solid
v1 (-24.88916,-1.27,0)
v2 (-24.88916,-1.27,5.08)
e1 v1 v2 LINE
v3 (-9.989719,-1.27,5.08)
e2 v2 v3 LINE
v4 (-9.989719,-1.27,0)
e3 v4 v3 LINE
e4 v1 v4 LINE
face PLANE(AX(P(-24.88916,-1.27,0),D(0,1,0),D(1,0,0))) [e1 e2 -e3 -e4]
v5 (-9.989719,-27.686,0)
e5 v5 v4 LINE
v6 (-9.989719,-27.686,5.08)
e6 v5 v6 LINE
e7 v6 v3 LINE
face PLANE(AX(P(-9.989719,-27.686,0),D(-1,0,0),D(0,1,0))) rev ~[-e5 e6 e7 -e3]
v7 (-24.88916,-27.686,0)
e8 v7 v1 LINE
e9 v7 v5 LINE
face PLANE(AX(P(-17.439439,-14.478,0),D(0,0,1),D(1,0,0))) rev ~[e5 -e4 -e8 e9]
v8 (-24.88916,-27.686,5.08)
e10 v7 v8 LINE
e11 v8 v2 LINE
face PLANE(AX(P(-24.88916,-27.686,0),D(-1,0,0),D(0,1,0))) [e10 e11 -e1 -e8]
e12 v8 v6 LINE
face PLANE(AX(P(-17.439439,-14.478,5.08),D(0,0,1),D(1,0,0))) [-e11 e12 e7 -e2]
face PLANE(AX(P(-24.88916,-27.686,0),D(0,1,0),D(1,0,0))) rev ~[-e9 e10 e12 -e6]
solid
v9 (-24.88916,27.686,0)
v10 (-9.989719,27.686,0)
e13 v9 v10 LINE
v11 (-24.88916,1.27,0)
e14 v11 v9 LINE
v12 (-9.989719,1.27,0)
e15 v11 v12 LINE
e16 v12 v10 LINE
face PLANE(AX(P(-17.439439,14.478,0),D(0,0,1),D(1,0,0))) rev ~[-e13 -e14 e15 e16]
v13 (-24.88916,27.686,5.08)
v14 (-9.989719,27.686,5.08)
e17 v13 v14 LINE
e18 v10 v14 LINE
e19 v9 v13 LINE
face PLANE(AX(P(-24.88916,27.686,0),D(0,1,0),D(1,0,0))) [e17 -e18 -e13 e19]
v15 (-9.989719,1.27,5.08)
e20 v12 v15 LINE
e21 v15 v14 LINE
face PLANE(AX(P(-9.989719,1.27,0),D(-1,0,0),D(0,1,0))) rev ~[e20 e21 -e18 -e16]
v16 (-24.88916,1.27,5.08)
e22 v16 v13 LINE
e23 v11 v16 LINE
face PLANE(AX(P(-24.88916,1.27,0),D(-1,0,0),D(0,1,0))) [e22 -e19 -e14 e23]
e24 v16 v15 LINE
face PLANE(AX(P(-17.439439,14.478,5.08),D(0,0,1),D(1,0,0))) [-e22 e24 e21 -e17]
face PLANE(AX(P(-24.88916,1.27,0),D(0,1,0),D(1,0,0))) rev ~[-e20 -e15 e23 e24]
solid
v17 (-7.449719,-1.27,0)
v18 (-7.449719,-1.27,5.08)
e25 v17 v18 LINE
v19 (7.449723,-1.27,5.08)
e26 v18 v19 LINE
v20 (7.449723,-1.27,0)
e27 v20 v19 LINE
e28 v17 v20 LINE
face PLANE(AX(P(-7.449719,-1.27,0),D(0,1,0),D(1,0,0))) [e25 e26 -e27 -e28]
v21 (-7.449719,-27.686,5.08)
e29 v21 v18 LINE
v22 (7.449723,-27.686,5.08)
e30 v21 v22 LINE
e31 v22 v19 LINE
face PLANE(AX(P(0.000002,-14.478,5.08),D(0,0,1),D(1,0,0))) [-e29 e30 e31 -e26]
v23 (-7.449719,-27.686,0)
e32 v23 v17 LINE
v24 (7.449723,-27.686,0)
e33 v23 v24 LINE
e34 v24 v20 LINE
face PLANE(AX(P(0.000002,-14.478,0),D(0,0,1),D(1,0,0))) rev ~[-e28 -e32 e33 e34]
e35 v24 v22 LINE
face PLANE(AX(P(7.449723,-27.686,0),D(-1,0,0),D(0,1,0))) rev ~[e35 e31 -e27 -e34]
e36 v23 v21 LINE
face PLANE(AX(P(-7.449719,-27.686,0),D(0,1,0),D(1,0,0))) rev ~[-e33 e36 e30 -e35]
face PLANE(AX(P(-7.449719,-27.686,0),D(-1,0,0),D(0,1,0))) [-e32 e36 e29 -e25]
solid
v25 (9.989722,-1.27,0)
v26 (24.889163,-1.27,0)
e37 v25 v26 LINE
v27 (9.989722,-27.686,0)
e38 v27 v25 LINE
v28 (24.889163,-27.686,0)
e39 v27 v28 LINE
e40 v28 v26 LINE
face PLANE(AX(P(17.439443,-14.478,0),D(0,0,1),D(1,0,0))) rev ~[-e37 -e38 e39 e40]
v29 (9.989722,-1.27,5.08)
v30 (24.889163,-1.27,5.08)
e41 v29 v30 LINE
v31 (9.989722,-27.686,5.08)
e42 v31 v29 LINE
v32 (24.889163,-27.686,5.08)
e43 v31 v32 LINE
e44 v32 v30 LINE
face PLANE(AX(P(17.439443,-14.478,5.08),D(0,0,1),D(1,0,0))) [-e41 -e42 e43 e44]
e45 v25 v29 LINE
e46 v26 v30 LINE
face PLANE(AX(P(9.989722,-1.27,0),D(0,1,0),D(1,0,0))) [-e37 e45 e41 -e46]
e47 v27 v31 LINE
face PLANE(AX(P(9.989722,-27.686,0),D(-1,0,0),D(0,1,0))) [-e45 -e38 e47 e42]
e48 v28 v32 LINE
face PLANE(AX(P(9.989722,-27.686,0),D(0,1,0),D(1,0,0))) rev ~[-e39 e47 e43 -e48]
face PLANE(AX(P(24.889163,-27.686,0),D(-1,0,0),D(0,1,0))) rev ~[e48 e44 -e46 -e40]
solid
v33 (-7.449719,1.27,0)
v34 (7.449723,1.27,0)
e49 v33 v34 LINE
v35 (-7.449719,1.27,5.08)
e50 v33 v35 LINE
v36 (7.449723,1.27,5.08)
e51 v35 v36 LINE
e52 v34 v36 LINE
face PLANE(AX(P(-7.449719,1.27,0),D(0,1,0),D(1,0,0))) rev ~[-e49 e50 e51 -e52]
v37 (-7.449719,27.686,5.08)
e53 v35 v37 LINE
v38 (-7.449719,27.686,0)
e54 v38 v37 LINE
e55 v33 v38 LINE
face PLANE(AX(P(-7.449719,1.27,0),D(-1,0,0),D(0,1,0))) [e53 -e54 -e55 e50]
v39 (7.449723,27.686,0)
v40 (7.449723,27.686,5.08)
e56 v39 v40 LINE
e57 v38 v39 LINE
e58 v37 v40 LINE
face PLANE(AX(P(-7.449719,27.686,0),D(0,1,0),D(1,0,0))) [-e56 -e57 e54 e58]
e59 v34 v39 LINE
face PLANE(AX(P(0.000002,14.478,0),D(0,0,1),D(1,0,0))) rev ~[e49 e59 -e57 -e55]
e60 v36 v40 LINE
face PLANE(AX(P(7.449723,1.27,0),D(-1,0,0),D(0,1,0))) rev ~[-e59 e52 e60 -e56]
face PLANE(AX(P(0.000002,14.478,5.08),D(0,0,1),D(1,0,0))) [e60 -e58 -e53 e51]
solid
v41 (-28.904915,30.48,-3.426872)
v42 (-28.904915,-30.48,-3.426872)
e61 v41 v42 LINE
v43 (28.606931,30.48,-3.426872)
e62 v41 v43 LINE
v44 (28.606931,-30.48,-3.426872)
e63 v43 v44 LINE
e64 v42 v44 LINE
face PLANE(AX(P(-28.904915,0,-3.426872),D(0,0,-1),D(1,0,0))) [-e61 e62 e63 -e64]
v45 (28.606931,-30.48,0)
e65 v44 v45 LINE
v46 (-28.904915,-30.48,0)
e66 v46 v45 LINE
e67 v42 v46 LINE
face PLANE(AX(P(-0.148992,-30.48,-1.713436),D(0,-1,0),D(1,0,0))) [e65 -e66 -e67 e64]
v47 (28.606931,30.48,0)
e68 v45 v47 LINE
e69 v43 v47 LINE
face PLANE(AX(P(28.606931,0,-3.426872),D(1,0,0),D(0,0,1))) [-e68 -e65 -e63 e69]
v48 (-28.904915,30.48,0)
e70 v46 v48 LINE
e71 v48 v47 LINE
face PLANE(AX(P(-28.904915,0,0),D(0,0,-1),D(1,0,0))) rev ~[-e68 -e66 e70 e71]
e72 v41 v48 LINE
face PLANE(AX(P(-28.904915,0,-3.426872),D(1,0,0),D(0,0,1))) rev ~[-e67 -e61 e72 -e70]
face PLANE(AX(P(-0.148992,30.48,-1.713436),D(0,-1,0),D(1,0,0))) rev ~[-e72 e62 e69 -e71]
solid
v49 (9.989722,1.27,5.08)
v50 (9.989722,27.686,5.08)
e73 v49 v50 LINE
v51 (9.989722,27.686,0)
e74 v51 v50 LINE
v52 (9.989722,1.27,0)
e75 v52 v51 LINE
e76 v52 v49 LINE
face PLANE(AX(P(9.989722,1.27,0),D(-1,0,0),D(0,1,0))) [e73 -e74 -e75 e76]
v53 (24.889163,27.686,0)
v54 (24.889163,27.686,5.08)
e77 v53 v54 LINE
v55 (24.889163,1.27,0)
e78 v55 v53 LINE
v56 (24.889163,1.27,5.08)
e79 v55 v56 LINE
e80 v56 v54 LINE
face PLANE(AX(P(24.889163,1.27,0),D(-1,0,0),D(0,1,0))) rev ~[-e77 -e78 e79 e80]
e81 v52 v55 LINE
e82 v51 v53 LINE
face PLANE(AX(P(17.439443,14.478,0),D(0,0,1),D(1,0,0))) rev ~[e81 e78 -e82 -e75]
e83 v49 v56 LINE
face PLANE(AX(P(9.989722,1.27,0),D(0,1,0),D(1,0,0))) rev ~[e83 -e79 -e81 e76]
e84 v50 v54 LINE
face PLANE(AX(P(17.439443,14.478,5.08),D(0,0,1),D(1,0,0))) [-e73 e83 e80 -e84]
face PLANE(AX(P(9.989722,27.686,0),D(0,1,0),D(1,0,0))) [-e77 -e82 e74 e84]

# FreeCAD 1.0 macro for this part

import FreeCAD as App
import Part
import Sketcher
from FreeCAD import Vector
Q = App.Units.Quantity


def add_polygon(sketch, points):
    """Adds a closed chain of lines whose ends are joined by coincident constraints."""
    first, n = sketch.GeometryCount, len(points)
    for a, b in zip(points, points[1:] + points[:1]):
        sketch.addGeometry(Part.LineSegment(App.Vector(*a, 0), App.Vector(*b, 0)), False)
    for i in range(n):
        sketch.addConstraint(Sketcher.Constraint("Coincident", first + i, 2, first + (i + 1) % n, 1))

doc = App.newDocument("Part")
body = doc.addObject("PartDesign::Body", "Body")
body.AllowCompound = True

# Sketch on XY plane
sketch1 = doc.addObject("Sketcher::SketchObject", "Sketch")
body.addObject(sketch1)
sketch1.AttachmentSupport = (doc.XY_Plane, [""])
sketch1.MapMode = "FlatFace"
add_polygon(sketch1, [(-24.88916, 27.686), (-24.88916, 1.27), (-9.989719, 1.27), (-9.989719, 27.686)])  # lines 0-3
add_polygon(sketch1, [(-7.449719, 27.686), (-7.449719, 1.27), (7.449723, 1.27), (7.449723, 27.686)])  # lines 4-7
add_polygon(sketch1, [(9.989722, 27.686), (9.989722, 1.27), (24.889163, 1.27), (24.889163, 27.686)])  # lines 8-11
add_polygon(sketch1, [(9.989722, -1.27), (9.989722, -27.686), (24.889163, -27.686), (24.889163, -1.27)])  # lines 12-15
add_polygon(sketch1, [(-7.449719, -1.27), (-7.449719, -27.686), (7.449723, -27.686), (7.449723, -1.27)])  # lines 16-19
add_polygon(sketch1, [(-24.88916, -1.27), (-24.88916, -27.686), (-9.989719, -27.686), (-9.989719, -1.27)])  # lines 20-23
sketch1.addConstraint([
    Sketcher.Constraint("Vertical", 0),
    Sketcher.Constraint("Horizontal", 1),
    Sketcher.Constraint("Vertical", 2),
    Sketcher.Constraint("Horizontal", 3),
    Sketcher.Constraint("Vertical", 4),
    Sketcher.Constraint("Horizontal", 5),
    Sketcher.Constraint("Vertical", 6),
    Sketcher.Constraint("Horizontal", 7),
    Sketcher.Constraint("Vertical", 8),
    Sketcher.Constraint("Horizontal", 9),
    Sketcher.Constraint("Vertical", 10),
    Sketcher.Constraint("Horizontal", 11),
    Sketcher.Constraint("Vertical", 12),
    Sketcher.Constraint("Horizontal", 13),
    Sketcher.Constraint("Vertical", 14),
    Sketcher.Constraint("Horizontal", 15),
    Sketcher.Constraint("Vertical", 16),
    Sketcher.Constraint("Horizontal", 17),
    Sketcher.Constraint("Vertical", 18),
    Sketcher.Constraint("Horizontal", 19),
    Sketcher.Constraint("Vertical", 20),
    Sketcher.Constraint("Horizontal", 21),
    Sketcher.Constraint("Vertical", 22),
    Sketcher.Constraint("Horizontal", 23),
    Sketcher.Constraint("Symmetric", 2, 2, 12, 2, -1, 1),
    Sketcher.Constraint("Symmetric", 0, 2, 14, 2, -1, 1),
    Sketcher.Constraint("Symmetric", 6, 2, 16, 2, -1, 1),
    Sketcher.Constraint("Symmetric", 4, 2, 18, 2, -1, 1),
    Sketcher.Constraint("Symmetric", 10, 2, 20, 2, -1, 1),
    Sketcher.Constraint("Symmetric", 8, 2, 22, 2, -1, 1),
    Sketcher.Constraint("Symmetric", 1, 2, 8, 2, -2),
    Sketcher.Constraint("Symmetric", 3, 2, 10, 2, -2),
    Sketcher.Constraint("Horizontal", 1, 2, 4, 2),
    Sketcher.Constraint("Horizontal", 3, 2, 6, 2),
    Sketcher.Constraint("Vertical", 7, 2, 16, 2),
    Sketcher.Constraint("Equal", 3, 5),
    Sketcher.Constraint("DistanceY", 0, 2, 0, 1, Q("1.04 in")),
    Sketcher.Constraint("DistanceX", 1, 2, 4, 2, Q("0.1 in")),
    Sketcher.Constraint("DistanceY", 14, 2, 9, 2, Q("0.1 in")),
    Sketcher.Constraint("DistanceX", 1, 1, 1, 2, 14.899441),
])
pad1 = doc.addObject("PartDesign::Pad", "Pad")
body.addObject(pad1)
pad1.Profile = sketch1
pad1.Length = Q("0.2 in")
body2 = doc.addObject("PartDesign::Body", "Body001")

# Sketch on XZ plane
sketch2 = doc.addObject("Sketcher::SketchObject", "Sketch001")
body2.addObject(sketch2)
sketch2.AttachmentSupport = (doc.getObject("XZ_Plane001"), [""])
sketch2.MapMode = "FlatFace"
add_polygon(sketch2, [(-28.904915, 0), (-28.904915, -3.426872), (28.606931, -3.426872), (28.606931, 0)])  # lines 0-3
sketch2.addConstraint([
    Sketcher.Constraint("Vertical", 0),
    Sketcher.Constraint("Horizontal", 1),
    Sketcher.Constraint("Vertical", 2),
    Sketcher.Constraint("Horizontal", 3),
    Sketcher.Constraint("PointOnObject", 2, 2, -1),
    Sketcher.Constraint("DistanceY", 0, 2, 0, 1, 3.426872),
    Sketcher.Constraint("DistanceX", 1, 1, 1, 2, 57.511846),
    Sketcher.Constraint("DistanceX", -1, 1, 1, 2, 28.606931),
])
pad2 = doc.addObject("PartDesign::Pad", "Pad001")
body2.addObject(pad2)
pad2.Profile = sketch2
pad2.Length = Q("2.4 in")
pad2.Midplane = True

doc.recompute()
